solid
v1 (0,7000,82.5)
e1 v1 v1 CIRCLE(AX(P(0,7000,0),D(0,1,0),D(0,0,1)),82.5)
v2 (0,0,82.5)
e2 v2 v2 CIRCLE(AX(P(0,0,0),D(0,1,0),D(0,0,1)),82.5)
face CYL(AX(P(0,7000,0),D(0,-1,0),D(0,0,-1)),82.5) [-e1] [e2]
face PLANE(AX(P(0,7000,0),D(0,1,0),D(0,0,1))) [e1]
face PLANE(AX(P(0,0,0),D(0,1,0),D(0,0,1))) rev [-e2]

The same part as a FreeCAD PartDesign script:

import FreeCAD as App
import Part
import Sketcher
from FreeCAD import Vector
Q = App.Units.Quantity

doc = App.newDocument("Part")
body = doc.addObject("PartDesign::Body", "Body")

# Sketch on XZ plane
sketch1 = body.newObject("Sketcher::SketchObject", "Sketch")
sketch1.AttachmentSupport = (doc.getObject("XZ_Plane"), [""])
sketch1.MapMode = "FlatFace"
sketch1.addGeometry(Part.Circle(Vector(0, 0, 0), Vector(0, 0, 1), 82.5), False)
sketch1.addConstraint([
    Sketcher.Constraint("Coincident", 0, 3, -1, 1),
    Sketcher.Constraint("Diameter", 0, Q("165 mm")),
])
pad1 = body.newObject("PartDesign::Pad", "Pad")
pad1.Profile = sketch1
pad1.Length = 7000
pad1.Reversed = True

doc.recompute()
